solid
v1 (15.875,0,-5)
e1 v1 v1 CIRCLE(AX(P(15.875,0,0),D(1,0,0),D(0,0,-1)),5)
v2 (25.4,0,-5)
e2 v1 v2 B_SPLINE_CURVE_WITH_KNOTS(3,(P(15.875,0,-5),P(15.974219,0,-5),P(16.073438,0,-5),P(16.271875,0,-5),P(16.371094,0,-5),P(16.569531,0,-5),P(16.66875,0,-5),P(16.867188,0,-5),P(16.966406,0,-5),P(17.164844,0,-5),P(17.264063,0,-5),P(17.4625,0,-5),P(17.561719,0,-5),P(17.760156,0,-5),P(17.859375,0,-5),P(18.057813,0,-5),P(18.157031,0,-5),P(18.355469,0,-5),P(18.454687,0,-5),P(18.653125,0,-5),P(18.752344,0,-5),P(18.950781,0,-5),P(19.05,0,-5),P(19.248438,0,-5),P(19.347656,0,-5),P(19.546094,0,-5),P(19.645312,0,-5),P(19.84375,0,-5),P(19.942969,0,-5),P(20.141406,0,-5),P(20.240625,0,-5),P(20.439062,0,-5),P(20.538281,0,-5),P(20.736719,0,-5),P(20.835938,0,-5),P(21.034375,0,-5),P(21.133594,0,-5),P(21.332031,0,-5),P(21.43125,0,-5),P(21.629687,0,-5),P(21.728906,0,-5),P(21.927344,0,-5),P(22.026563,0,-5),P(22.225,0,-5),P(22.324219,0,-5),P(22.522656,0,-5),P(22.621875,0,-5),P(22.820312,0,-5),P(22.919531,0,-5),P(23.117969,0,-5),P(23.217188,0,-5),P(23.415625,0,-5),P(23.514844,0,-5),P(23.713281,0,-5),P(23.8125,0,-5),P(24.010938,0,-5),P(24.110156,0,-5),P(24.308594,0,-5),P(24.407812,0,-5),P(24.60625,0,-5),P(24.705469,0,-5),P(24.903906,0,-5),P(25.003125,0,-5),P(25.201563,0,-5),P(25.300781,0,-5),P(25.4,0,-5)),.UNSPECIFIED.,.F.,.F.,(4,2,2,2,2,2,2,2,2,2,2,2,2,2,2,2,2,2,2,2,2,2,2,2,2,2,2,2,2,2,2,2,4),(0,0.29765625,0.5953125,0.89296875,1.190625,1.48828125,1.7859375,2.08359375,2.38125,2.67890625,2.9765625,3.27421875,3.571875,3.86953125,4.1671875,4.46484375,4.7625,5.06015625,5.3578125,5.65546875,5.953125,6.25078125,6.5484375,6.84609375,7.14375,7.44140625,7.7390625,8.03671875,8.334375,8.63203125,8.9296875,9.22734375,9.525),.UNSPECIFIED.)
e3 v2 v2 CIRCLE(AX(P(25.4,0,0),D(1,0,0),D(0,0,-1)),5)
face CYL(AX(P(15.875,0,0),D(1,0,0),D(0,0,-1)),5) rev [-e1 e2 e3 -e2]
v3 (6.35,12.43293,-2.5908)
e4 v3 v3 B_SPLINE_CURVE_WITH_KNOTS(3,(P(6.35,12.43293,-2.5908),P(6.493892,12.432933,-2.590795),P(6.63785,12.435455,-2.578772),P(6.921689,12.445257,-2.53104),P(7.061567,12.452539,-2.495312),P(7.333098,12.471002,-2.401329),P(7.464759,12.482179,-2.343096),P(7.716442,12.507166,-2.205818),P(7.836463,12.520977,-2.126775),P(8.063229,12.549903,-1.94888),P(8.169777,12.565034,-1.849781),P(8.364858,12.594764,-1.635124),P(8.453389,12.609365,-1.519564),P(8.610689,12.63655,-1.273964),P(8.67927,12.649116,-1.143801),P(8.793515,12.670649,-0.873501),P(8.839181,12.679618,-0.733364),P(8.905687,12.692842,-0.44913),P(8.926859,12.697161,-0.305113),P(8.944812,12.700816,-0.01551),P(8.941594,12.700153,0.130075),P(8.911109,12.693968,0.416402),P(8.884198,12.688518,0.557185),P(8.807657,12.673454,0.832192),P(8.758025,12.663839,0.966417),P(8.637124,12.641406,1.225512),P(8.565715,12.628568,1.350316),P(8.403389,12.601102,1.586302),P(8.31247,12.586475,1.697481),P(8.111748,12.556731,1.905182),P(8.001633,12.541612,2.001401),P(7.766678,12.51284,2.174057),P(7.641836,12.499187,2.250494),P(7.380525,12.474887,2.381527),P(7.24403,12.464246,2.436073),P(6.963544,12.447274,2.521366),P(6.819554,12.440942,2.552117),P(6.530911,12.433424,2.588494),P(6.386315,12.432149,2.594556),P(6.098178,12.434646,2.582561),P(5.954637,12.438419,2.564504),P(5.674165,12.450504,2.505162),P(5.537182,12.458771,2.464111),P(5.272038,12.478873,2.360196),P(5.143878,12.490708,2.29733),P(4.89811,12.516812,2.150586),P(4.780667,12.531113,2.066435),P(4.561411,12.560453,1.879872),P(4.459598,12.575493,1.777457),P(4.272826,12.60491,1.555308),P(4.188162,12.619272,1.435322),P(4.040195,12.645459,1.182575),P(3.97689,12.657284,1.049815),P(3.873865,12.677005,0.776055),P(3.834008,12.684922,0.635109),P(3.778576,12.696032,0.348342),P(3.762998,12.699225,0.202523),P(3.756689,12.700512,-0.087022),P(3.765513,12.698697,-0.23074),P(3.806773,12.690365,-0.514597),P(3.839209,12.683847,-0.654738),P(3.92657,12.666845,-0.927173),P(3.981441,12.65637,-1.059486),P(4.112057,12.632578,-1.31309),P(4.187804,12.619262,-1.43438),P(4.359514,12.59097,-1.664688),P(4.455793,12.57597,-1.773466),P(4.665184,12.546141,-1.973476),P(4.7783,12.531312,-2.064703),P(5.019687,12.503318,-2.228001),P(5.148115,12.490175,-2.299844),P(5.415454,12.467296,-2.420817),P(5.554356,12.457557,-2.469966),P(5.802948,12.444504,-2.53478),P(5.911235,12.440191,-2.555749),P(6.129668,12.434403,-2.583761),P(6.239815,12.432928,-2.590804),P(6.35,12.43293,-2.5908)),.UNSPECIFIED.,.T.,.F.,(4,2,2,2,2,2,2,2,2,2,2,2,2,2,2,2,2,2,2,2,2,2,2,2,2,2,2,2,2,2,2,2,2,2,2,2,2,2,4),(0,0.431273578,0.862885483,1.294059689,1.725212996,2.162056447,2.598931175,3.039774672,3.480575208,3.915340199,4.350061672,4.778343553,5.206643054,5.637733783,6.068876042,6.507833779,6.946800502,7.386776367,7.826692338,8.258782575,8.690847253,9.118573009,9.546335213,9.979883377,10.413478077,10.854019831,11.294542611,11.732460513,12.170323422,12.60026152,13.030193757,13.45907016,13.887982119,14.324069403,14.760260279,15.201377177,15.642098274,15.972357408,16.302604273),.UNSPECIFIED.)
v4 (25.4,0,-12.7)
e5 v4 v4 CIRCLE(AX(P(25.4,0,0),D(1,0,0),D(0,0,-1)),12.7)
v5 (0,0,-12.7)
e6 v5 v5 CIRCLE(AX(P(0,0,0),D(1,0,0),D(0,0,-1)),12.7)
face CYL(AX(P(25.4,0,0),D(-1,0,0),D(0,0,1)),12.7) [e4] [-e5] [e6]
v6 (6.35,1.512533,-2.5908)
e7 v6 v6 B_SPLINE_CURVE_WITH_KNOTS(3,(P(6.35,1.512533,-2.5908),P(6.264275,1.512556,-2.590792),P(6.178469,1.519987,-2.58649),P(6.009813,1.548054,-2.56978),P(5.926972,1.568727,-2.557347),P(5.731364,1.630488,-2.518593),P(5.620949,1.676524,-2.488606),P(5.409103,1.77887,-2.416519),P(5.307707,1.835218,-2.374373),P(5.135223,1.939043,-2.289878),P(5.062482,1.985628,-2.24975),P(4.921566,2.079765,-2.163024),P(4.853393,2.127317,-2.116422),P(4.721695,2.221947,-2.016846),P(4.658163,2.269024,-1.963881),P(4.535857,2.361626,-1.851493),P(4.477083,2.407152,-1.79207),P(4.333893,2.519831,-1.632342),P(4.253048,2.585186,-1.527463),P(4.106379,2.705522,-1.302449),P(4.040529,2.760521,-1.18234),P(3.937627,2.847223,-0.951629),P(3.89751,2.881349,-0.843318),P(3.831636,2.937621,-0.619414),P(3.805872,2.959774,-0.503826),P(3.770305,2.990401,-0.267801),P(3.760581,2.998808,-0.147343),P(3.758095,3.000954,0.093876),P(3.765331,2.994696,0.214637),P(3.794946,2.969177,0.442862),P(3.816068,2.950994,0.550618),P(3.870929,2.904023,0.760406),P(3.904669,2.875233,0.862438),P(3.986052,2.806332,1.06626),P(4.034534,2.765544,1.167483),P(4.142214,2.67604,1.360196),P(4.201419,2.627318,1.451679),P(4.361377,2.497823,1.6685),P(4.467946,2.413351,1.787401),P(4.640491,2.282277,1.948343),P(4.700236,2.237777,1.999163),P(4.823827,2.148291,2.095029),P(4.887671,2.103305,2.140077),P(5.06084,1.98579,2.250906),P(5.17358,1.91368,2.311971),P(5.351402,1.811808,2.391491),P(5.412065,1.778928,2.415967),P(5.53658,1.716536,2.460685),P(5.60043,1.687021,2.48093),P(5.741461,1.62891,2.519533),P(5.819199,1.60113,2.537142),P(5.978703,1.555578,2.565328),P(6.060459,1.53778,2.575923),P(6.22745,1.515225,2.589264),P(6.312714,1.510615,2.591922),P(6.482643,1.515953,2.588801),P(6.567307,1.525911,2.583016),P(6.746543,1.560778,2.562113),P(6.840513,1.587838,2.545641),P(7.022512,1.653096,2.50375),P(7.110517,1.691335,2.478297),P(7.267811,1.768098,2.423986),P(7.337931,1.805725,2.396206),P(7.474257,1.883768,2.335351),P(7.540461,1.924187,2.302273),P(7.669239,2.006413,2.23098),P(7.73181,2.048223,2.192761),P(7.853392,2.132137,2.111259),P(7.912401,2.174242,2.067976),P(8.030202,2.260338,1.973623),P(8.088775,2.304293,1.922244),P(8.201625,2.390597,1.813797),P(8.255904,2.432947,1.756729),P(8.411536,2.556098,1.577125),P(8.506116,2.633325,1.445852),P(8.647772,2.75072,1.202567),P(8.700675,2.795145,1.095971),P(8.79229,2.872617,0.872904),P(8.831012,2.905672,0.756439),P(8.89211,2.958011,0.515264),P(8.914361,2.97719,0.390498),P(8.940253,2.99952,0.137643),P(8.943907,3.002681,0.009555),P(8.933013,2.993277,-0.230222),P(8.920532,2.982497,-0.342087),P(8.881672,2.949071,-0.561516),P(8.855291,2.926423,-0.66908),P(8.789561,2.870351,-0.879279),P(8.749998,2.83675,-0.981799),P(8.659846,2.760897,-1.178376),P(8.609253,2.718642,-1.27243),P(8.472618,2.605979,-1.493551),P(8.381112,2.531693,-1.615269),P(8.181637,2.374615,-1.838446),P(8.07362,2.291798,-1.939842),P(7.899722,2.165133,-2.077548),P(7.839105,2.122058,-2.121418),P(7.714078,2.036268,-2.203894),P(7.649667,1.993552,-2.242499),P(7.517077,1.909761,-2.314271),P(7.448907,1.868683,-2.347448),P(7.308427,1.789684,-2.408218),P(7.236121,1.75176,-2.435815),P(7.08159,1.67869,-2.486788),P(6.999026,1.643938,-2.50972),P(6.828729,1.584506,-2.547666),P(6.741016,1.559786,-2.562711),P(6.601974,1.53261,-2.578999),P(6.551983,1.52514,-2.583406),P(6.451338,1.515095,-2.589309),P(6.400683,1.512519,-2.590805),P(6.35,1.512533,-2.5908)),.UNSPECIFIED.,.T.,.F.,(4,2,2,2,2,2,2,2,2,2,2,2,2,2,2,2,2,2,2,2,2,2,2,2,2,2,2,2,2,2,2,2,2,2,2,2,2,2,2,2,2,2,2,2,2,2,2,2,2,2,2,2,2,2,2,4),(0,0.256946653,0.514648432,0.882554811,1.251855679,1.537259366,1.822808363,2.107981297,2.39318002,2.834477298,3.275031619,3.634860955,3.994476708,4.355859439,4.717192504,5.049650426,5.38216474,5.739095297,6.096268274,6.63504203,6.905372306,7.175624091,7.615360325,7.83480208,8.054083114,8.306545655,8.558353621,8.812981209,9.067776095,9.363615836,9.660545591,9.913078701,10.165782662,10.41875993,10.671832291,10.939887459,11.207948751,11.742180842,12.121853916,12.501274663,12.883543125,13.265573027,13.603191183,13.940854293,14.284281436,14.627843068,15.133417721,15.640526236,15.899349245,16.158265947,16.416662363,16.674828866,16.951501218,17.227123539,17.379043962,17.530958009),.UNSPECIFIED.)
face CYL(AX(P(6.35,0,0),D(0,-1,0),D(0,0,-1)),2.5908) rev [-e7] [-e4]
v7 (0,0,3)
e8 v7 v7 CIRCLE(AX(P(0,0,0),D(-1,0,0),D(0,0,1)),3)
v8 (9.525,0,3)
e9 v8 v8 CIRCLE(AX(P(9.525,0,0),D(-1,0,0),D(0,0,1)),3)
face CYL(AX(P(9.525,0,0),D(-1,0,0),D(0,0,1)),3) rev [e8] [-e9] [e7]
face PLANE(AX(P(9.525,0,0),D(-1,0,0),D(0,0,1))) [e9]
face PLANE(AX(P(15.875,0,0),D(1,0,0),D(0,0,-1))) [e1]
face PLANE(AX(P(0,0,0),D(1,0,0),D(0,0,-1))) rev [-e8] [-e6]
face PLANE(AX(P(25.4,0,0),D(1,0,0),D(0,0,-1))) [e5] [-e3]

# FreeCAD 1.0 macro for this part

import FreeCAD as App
import Part
import Sketcher
Q = App.Units.Quantity


def add_polygon(sketch, points):
    """Adds a closed chain of lines whose ends are joined by coincident constraints."""
    first, n = sketch.GeometryCount, len(points)
    for a, b in zip(points, points[1:] + points[:1]):
        sketch.addGeometry(Part.LineSegment(App.Vector(*a, 0), App.Vector(*b, 0)), False)
    for i in range(n):
        sketch.addConstraint(Sketcher.Constraint("Coincident", first + i, 2, first + (i + 1) % n, 1))

doc = App.newDocument("Part")
body = doc.addObject("PartDesign::Body", "Body")

# Sketch on YZ plane
sketch1 = body.newObject("Sketcher::SketchObject", "Sketch")
sketch1.AttachmentSupport = (doc.getObject("YZ_Plane"), [""])
sketch1.MapMode = "FlatFace"
sketch1.addGeometry(Part.Circle(App.Vector(0, 0, 0), App.Vector(0, 0, 1), 12.7), False)
sketch1.addConstraint([
    Sketcher.Constraint("Coincident", 0, 3, -1, 1),
    Sketcher.Constraint("Diameter", 0, Q("1 in")),
])
pad1 = body.newObject("PartDesign::Pad", "Pad")
pad1.Profile = sketch1
pad1.Length = Q("1 in")

# Sketch on YZ plane
sketch2 = body.newObject("Sketcher::SketchObject", "Sketch001")
sketch2.AttachmentSupport = (doc.getObject("YZ_Plane"), [""])
sketch2.MapMode = "FlatFace"
sketch2.addGeometry(Part.Circle(App.Vector(0, 0, 0), App.Vector(0, 0, 1), 3), False)
sketch2.addConstraint([
    Sketcher.Constraint("Coincident", 0, 3, -1, 1),
    Sketcher.Constraint("Diameter", 0, Q("6 mm")),
])
pocket1 = body.newObject("PartDesign::Pocket", "Pocket")
pocket1.Profile = sketch2
pocket1.Length = Q("0.375 in")
pocket1.Reversed = True

# Sketch on YZ plane
sketch3 = body.newObject("Sketcher::SketchObject", "Sketch002")
sketch3.AttachmentSupport = (doc.getObject("YZ_Plane"), [""])
sketch3.MapMode = "FlatFace"
sketch3.AttachmentOffset = App.Placement(App.Vector(0, 0, 0.25 * 25.4), App.Rotation())
add_polygon(sketch3, [(16.28871, 0), (0, 0), (0, -2.5908), (14.732, -2.5908)])  # lines 0-3
sketch3.addConstraint([
    Sketcher.Constraint("Horizontal", 0),
    Sketcher.Constraint("Vertical", 1),
    Sketcher.Constraint("Horizontal", 2),
    Sketcher.Constraint("Coincident", 0, 2, -1, 1),
    Sketcher.Constraint("Angle", 3, Q("59 deg")),
    Sketcher.Constraint("DistanceX", 2, 1, 2, 2, Q("0.58 in")),
    Sketcher.Constraint("DistanceY", 1, 2, 1, 1, Q("0.102 in")),
])
groove = body.newObject("PartDesign::Groove", "Groove")
groove.Profile = sketch3
groove.ReferenceAxis = (sketch3, ["H_Axis"])
groove.Angle = 360

# Sketch on YZ plane
sketch4 = body.newObject("Sketcher::SketchObject", "Sketch003")
sketch4.AttachmentSupport = (doc.getObject("YZ_Plane"), [""])
sketch4.MapMode = "FlatFace"
sketch4.AttachmentOffset = App.Placement(App.Vector(0, 0, 1 * 25.4), App.Rotation())
sketch4.addGeometry(Part.Circle(App.Vector(0, 0, 0), App.Vector(0, 0, 1), 5), False)
sketch4.addConstraint([
    Sketcher.Constraint("Coincident", 0, 3, -1, 1),
    Sketcher.Constraint("Diameter", 0, Q("10 mm")),
])
pocket2 = body.newObject("PartDesign::Pocket", "Pocket001")
pocket2.Profile = sketch4
pocket2.Length = Q("0.375 in")

doc.recompute()
